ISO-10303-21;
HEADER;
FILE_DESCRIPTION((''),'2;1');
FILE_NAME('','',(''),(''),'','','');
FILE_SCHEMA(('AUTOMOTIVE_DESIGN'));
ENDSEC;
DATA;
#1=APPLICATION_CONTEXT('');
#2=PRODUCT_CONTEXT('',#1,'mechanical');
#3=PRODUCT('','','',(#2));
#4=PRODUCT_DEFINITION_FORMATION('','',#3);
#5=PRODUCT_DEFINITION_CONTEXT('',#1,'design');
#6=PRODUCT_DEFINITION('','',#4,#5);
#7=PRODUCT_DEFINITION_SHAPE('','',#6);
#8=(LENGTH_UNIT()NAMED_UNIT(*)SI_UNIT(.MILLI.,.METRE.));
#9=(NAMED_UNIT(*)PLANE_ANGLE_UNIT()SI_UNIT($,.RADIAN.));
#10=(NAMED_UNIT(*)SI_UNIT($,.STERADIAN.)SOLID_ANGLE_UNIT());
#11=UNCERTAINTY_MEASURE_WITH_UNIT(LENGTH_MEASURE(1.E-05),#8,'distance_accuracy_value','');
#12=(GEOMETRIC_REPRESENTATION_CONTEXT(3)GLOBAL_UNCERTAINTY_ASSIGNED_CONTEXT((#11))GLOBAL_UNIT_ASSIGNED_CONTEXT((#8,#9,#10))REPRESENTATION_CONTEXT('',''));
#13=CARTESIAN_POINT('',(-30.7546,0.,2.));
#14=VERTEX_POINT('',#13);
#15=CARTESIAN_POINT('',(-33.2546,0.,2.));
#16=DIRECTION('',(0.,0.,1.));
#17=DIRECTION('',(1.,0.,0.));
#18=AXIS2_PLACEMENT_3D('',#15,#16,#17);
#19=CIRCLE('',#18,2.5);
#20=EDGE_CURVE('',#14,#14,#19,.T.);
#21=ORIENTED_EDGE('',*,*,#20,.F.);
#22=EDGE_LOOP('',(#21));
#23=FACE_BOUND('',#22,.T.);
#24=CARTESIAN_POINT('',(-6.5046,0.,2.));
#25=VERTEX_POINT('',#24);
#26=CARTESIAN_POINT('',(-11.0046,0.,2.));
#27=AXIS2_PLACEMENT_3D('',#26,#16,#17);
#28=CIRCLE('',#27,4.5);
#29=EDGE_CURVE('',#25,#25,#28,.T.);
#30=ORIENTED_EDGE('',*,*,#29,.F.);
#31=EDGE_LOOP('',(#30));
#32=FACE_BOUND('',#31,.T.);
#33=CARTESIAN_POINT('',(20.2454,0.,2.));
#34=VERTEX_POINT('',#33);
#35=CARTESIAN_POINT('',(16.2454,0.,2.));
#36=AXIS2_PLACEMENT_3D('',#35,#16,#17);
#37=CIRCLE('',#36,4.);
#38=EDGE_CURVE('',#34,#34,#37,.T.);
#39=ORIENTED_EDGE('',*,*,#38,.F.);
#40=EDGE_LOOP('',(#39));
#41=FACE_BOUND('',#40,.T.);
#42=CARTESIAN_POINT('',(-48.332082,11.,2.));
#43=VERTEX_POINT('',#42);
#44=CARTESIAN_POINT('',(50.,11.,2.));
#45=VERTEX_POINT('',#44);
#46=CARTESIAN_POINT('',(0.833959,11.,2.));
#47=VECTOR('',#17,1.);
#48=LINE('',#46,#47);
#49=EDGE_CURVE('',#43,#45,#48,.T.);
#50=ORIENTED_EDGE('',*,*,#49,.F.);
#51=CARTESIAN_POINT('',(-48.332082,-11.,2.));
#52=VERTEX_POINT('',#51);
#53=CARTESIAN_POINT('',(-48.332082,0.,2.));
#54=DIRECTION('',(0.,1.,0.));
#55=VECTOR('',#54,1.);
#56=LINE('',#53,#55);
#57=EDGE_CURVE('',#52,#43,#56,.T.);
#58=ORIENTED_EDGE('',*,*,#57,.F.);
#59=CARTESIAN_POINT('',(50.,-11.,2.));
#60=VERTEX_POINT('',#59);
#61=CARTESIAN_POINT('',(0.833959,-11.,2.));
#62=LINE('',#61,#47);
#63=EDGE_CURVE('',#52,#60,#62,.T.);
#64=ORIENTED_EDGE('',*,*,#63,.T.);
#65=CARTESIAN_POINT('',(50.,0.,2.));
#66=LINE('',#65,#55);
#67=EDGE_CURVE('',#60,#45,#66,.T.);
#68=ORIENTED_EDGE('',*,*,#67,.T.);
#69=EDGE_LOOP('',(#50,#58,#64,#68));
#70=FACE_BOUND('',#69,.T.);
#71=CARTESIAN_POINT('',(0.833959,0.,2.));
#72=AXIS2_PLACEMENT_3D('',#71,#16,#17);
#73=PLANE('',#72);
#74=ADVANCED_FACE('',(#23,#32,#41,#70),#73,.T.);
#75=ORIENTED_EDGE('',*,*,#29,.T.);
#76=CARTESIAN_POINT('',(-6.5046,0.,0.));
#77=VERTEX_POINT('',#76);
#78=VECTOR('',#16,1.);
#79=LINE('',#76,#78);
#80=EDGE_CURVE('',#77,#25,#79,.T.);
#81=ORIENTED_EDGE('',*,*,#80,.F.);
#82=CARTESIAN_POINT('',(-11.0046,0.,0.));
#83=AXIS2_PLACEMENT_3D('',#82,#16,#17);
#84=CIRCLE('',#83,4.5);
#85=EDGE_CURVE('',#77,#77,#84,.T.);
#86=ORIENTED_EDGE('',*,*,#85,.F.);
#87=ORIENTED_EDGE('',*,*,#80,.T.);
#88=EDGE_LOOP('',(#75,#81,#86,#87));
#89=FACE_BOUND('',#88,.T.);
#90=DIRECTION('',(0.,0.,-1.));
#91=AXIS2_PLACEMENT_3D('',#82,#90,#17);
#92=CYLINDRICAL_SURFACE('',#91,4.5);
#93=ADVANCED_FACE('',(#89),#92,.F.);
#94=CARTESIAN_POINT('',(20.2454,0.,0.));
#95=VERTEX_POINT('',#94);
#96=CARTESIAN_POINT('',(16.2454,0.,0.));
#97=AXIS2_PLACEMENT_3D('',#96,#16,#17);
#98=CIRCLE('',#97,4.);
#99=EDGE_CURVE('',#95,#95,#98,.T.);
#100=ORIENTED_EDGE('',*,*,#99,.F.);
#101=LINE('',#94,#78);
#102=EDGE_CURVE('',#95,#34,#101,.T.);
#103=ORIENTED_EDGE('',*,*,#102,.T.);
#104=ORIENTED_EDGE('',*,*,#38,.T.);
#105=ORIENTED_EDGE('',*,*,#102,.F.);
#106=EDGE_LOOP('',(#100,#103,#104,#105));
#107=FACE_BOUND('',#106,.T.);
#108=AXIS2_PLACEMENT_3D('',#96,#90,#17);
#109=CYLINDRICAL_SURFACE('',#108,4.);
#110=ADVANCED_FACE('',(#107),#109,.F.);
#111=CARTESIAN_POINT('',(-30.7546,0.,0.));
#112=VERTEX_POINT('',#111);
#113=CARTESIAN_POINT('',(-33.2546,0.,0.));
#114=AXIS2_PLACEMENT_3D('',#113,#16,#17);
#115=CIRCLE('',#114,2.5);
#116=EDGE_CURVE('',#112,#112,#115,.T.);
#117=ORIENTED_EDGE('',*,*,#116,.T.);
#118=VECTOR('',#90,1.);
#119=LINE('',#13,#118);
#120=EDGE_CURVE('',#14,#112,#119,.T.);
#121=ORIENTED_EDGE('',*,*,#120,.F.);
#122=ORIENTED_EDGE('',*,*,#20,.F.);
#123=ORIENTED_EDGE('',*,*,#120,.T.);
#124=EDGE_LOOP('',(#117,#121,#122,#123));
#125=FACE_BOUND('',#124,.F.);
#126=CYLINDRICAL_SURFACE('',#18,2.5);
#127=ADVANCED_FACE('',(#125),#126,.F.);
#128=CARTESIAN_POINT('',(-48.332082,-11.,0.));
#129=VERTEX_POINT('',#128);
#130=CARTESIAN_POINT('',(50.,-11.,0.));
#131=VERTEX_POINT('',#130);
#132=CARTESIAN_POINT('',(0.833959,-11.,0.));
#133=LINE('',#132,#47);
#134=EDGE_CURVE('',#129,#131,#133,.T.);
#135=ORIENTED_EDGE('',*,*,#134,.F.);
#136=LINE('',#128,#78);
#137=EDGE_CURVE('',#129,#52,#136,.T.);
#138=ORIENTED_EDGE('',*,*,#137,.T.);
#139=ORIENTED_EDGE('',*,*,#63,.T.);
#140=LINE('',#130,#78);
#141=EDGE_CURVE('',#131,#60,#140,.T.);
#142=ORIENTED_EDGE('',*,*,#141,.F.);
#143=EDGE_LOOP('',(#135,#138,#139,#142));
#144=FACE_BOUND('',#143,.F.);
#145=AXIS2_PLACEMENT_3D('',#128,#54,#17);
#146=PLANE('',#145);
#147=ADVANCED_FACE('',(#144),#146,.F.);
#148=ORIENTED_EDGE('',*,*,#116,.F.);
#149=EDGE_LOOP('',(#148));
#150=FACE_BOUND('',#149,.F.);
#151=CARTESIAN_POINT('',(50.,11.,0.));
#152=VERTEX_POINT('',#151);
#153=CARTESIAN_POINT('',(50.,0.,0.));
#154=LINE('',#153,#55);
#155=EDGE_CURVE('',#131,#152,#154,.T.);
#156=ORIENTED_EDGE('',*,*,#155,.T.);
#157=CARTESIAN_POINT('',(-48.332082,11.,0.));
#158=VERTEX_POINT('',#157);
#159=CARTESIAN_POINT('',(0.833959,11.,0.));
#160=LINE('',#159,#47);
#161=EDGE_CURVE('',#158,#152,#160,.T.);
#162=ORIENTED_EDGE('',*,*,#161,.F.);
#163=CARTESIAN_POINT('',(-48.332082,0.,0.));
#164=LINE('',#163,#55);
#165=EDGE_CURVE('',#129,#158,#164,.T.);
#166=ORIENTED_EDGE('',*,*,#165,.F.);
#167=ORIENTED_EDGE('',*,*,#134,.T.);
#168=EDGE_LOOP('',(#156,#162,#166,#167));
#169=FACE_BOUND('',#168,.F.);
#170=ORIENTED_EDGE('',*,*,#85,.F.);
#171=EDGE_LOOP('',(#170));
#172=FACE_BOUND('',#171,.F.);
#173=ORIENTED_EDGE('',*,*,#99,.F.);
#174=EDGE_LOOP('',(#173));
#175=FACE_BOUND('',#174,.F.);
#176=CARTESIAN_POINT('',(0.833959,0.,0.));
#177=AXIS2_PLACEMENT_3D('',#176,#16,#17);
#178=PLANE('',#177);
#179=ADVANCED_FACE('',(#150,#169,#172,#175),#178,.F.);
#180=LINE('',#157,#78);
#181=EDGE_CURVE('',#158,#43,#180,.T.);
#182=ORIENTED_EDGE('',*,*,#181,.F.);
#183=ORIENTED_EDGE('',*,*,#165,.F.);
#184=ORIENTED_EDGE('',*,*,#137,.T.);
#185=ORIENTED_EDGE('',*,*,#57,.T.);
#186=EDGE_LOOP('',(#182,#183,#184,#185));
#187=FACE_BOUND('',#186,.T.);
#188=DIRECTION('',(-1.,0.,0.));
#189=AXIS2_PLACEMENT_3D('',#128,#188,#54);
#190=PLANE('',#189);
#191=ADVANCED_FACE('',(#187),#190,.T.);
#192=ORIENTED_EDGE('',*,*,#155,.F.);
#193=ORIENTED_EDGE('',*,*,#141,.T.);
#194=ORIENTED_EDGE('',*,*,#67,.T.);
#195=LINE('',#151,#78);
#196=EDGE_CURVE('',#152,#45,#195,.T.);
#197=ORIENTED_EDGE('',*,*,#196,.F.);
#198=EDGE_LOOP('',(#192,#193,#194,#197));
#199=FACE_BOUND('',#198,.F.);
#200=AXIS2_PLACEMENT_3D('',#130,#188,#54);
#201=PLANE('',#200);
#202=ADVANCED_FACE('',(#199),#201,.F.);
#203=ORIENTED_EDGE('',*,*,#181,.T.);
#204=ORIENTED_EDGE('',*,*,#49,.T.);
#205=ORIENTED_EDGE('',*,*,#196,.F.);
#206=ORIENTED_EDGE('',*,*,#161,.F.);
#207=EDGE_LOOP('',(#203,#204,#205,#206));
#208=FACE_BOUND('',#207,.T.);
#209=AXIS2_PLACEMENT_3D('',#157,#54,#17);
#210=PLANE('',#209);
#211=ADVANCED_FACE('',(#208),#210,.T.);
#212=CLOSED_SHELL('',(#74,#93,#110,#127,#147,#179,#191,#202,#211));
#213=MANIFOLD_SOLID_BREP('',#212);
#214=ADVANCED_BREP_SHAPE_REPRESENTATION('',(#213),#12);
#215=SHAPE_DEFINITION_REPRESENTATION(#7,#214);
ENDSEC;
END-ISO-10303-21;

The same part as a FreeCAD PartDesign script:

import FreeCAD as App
import Part
import Sketcher
Q = App.Units.Quantity

doc = App.newDocument("Part")
params = doc.addObject("Spreadsheet::Sheet", "Params")
for row, (alias, value) in enumerate([
    ("sketch1_diameter", "9 mm"),
    ("sketch1_diameter2", "8 mm"),
    ("sketch1_height", "22 mm"),
    ("pad1_length", "2 mm"),
    ("sketch2_diameter", "5 mm"),
    ("pocket1_length", "25 mm"),
], start=1):
    params.set(f"A{row}", alias)
    params.set(f"B{row}", "=" + value)
    params.setAlias(f"B{row}", alias)

body = doc.addObject("PartDesign::Body", "Body")

sketch1 = body.newObject("Sketcher::SketchObject", "Sketch")
sketch1.AttachmentSupport = (doc.getObject("XY_Plane"), [""])
sketch1.MapMode = "FlatFace"
sketch1.addGeometry(Part.LineSegment(App.Vector(-48.332082, 11, 0), App.Vector(-48.332082, -11, 0)), False)
sketch1.addGeometry(Part.LineSegment(App.Vector(-48.332082, -11, 0), App.Vector(50, -11, 0)), False)
sketch1.addGeometry(Part.LineSegment(App.Vector(50, -11, 0), App.Vector(50, 11, 0)), False)
sketch1.addGeometry(Part.LineSegment(App.Vector(50, 11, 0), App.Vector(-48.332082, 11, 0)), False)
sketch1.addGeometry(Part.Circle(App.Vector(-11.0046, 0, 0), App.Vector(0, 0, 1), 4.5), False)
sketch1.addGeometry(Part.Circle(App.Vector(16.2454, 0, 0), App.Vector(0, 0, 1), 4), False)
sketch1.addConstraint(Sketcher.Constraint("Coincident", 0, 2, 1, 1))
sketch1.addConstraint(Sketcher.Constraint("Coincident", 1, 2, 2, 1))
sketch1.addConstraint(Sketcher.Constraint("Coincident", 2, 2, 3, 1))
sketch1.addConstraint(Sketcher.Constraint("Coincident", 3, 2, 0, 1))
sketch1.addConstraint(Sketcher.Constraint("Vertical", 0))
sketch1.addConstraint(Sketcher.Constraint("Horizontal", 1))
sketch1.addConstraint(Sketcher.Constraint("Vertical", 2))
sketch1.addConstraint(Sketcher.Constraint("Horizontal", 3))
sketch1.addConstraint(Sketcher.Constraint("PointOnObject", 4, 3, -1))
sketch1.addConstraint(Sketcher.Constraint("PointOnObject", 5, 3, -1))
sketch1.addConstraint(Sketcher.Constraint("Diameter", 4, Q("9 mm")))
sketch1.addConstraint(Sketcher.Constraint("Diameter", 5, Q("8 mm")))
sketch1.addConstraint(Sketcher.Constraint("DistanceY", 0, 2, 0, 1, Q("22 mm")))
sketch1.addConstraint(Sketcher.Constraint("DistanceY", 0, 2, -1, 1, Q("11 mm")))
sketch1.addConstraint(Sketcher.Constraint("DistanceX", -1, 1, 1, 2, Q("50 mm")))
sketch1.addConstraint(Sketcher.Constraint("DistanceX", 4, 3, 5, 3, Q("27.25 mm")))
sketch1.addConstraint(Sketcher.Constraint("DistanceX", 1, 1, 1, 2, Q("98.332082 mm")))
sketch1.addConstraint(Sketcher.Constraint("DistanceX", 4, 3, -1, 1, Q("11.0046 mm")))
sketch1.setExpression("Constraints[10]", "Params.sketch1_diameter")
sketch1.setExpression("Constraints[11]", "Params.sketch1_diameter2")
sketch1.setExpression("Constraints[12]", "Params.sketch1_height")
pad1 = body.newObject("PartDesign::Pad", "Pad")
pad1.Profile = sketch1
pad1.setExpression("Length", "Params.pad1_length")

sketch2 = body.newObject("Sketcher::SketchObject", "Sketch001")
sketch2.AttachmentSupport = (doc.getObject("XY_Plane"), [""])
sketch2.MapMode = "FlatFace"
sketch2.AttachmentOffset = App.Placement(App.Vector(0, 0, 2), App.Rotation())
sketch2.addGeometry(Part.Circle(App.Vector(-33.2546, 0, 0), App.Vector(0, 0, 1), 2.5), False)
sketch2.addConstraint(Sketcher.Constraint("PointOnObject", 0, 3, -1))
sketch2.addConstraint(Sketcher.Constraint("Diameter", 0, Q("5 mm")))
sketch2.addConstraint(Sketcher.Constraint("DistanceX", 0, 3, -1, 1, Q("33.2546 mm")))
sketch2.setExpression("Constraints[1]", "Params.sketch2_diameter")
pocket1 = body.newObject("PartDesign::Pocket", "Pocket")
pocket1.Profile = sketch2
pocket1.setExpression("Length", "Params.pocket1_length")

doc.recompute()
